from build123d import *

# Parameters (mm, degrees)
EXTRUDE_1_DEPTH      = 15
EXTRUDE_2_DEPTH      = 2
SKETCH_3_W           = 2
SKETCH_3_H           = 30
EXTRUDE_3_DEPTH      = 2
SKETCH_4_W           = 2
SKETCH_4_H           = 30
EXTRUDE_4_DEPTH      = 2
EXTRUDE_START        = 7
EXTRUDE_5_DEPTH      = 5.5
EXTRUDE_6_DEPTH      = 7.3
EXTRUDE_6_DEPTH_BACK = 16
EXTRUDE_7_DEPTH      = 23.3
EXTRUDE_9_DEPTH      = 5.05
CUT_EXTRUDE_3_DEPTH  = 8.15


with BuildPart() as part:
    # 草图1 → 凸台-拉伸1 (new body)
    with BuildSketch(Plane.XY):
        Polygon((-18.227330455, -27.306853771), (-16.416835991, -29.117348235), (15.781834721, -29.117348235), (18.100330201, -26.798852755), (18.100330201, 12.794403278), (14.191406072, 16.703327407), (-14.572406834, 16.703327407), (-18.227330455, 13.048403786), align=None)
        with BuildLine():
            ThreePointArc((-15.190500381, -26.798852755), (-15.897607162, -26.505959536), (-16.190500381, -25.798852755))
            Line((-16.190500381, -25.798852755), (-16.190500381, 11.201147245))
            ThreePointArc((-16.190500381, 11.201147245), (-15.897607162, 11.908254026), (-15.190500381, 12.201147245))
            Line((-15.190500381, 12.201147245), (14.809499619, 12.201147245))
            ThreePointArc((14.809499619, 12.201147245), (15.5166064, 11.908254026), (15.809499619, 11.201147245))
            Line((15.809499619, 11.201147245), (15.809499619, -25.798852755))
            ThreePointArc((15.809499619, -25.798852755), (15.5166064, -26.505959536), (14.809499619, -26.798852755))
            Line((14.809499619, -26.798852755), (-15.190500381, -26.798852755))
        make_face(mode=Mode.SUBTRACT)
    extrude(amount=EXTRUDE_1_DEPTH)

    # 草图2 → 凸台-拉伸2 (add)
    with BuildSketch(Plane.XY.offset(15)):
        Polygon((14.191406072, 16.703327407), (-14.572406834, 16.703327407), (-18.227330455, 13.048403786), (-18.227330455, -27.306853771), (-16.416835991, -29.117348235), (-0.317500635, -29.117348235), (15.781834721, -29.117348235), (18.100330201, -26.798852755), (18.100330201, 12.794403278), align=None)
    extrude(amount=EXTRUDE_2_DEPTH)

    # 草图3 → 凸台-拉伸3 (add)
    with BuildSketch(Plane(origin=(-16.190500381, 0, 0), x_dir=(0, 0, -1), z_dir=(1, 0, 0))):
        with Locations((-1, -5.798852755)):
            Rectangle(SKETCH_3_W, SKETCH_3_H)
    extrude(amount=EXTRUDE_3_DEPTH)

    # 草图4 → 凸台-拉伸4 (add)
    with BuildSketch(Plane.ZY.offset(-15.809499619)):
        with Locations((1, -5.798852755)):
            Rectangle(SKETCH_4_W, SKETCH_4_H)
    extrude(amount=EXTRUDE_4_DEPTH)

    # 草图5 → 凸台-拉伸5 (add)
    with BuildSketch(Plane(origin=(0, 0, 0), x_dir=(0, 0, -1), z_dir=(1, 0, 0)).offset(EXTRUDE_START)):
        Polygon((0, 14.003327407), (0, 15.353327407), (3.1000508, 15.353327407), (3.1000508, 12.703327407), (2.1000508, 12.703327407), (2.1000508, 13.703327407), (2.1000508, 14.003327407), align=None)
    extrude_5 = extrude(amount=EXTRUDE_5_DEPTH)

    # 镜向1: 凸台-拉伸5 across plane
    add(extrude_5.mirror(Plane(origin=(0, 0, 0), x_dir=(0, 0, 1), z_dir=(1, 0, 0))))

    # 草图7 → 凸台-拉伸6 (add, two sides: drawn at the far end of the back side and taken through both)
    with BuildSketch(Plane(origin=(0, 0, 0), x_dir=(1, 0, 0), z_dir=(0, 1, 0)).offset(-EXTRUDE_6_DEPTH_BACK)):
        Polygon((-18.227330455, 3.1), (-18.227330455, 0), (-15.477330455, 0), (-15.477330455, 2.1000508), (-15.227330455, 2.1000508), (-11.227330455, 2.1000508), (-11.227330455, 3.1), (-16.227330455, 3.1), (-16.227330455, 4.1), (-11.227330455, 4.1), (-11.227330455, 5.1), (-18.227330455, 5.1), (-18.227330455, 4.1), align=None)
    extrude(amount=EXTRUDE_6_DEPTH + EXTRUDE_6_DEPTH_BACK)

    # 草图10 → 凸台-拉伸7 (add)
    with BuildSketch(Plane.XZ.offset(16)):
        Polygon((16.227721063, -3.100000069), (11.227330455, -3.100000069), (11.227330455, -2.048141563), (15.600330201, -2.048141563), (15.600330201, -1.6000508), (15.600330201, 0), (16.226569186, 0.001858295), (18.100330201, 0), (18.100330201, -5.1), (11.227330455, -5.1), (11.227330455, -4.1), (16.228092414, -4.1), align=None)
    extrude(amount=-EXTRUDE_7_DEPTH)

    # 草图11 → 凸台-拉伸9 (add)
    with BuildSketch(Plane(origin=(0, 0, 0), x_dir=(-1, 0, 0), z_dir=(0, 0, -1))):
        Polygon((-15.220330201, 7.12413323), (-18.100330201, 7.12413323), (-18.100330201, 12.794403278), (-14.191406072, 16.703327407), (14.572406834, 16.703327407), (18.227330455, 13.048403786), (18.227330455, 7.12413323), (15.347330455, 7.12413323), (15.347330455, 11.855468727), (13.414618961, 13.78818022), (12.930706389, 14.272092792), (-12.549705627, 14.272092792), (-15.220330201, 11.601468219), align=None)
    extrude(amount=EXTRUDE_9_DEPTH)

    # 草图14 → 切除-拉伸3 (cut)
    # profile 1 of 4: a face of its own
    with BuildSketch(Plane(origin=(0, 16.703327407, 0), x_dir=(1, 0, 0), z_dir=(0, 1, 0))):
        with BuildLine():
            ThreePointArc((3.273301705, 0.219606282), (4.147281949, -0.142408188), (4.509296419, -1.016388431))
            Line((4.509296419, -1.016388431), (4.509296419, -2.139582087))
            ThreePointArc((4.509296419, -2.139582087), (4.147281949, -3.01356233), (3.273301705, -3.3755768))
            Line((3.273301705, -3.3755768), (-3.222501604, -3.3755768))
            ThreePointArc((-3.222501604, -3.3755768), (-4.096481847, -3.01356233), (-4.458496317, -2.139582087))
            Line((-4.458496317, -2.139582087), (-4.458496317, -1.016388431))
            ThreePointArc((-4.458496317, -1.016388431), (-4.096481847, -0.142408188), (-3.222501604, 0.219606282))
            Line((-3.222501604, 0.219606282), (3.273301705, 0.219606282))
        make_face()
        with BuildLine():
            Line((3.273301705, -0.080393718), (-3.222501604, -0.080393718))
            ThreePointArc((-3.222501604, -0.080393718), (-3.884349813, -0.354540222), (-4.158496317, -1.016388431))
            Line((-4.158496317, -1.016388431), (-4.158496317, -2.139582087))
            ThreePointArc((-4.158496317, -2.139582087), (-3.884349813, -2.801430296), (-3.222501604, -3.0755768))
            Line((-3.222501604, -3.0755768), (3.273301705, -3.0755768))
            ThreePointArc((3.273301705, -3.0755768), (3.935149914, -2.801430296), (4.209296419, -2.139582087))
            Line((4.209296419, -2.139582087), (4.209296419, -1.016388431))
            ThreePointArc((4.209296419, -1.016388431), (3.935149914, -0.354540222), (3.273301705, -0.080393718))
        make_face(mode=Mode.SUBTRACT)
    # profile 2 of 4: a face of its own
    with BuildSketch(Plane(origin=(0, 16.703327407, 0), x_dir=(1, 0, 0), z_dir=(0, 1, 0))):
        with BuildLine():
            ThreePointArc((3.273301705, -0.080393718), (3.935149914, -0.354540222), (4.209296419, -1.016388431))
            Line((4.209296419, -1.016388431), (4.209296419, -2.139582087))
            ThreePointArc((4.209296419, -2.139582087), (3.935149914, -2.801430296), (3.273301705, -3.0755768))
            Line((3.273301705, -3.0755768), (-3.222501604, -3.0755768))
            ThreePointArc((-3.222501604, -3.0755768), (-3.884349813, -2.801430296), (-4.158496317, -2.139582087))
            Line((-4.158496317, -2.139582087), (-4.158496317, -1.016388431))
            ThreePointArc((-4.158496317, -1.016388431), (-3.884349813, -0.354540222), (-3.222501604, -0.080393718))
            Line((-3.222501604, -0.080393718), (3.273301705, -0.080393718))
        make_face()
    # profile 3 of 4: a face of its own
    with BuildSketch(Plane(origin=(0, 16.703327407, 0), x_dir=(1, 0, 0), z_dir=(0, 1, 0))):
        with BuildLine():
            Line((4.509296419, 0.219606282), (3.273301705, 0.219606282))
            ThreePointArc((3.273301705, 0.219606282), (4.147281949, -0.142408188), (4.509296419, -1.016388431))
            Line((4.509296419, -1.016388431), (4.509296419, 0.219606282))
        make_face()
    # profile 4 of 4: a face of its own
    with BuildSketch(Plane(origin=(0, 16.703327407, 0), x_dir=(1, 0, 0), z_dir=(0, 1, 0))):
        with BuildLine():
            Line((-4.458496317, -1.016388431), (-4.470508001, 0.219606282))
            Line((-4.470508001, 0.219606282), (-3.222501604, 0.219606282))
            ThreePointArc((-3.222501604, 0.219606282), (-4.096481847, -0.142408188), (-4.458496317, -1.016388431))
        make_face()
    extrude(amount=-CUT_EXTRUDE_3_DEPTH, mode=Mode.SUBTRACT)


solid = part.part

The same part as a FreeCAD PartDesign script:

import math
import FreeCAD as App
import Part
import Sketcher
Q = App.Units.Quantity

doc = App.newDocument("Part")
params = doc.addObject("Spreadsheet::Sheet", "Params")
for row, (alias, value) in enumerate([
    ("sketch1_radius", "1 mm"),
    ("sketch1_width", "30 mm"),
    ("sketch1_height", "37 mm"),
    ("pad1_length", "15 mm"),
    ("pad2_length", "2 mm"),
    ("sketch3_width", "30 mm"),
    ("sketch3_height", "2 mm"),
    ("pad3_length", "2 mm"),
    ("sketch4_width", "30 mm"),
    ("sketch4_height", "2 mm"),
    ("pad4_length", "2 mm"),
    ("sketch5_height", "1 mm"),
    ("sketch5_width", "1.3 mm"),
    ("sketch5_width2", "1.35 mm"),
    ("pad5_length", "5.5 mm"),
    ("sketch6_width", "5 mm"),
    ("sketch6_width2", "7 mm"),
    ("sketch6_height", "1 mm"),
    ("sketch6_height2", "5.1 mm"),
    ("sketch6_width3", "2.75 mm"),
    ("pad6_length", "7.3 mm"),
    ("pad6_length2", "16 mm"),
    ("sketch7_height", "1 mm"),
    ("sketch7_length", "1 mm"),
    ("sketch7_height2", "5.1 mm"),
    ("pad7_length", "23.3 mm"),
    ("sketch8_width", "2.88 mm"),
    ("pad8_length", "5.05 mm"),
    ("pocket1_length", "8.15 mm"),
], start=1):
    params.set(f"A{row}", alias)
    params.set(f"B{row}", "=" + value)
    params.setAlias(f"B{row}", alias)

body = doc.addObject("PartDesign::Body", "Body")

# Sketch on XY plane
sketch1 = body.newObject("Sketcher::SketchObject", "Sketch")
sketch1.AttachmentSupport = (doc.getObject("XY_Plane"), [""])
sketch1.MapMode = "FlatFace"
sketch1.addGeometry([
    Part.LineSegment(App.Vector(-18.2, -27.3, 0), App.Vector(-16.4, -29.1, 0)),  # 0
    Part.LineSegment(App.Vector(-16.4, -29.1, 0), App.Vector(15.8, -29.1, 0)),  # 1
    Part.LineSegment(App.Vector(15.8, -29.1, 0), App.Vector(18.1, -26.8, 0)),  # 2
    Part.LineSegment(App.Vector(18.1, -26.8, 0), App.Vector(18.1, 12.8, 0)),  # 3
    Part.LineSegment(App.Vector(18.1, 12.8, 0), App.Vector(14.2, 16.7, 0)),  # 4
    Part.LineSegment(App.Vector(14.2, 16.7, 0), App.Vector(-14.6, 16.7, 0)),  # 5
    Part.LineSegment(App.Vector(-14.6, 16.7, 0), App.Vector(-18.2, 13, 0)),  # 6
    Part.LineSegment(App.Vector(-18.2, 13, 0), App.Vector(-18.2, -27.3, 0)),  # 7
    Part.LineSegment(App.Vector(14.8, -26.8, 0), App.Vector(-15.2, -26.8, 0)),  # 8
    Part.ArcOfCircle(Part.Circle(App.Vector(-15.2, -25.8, 0), App.Vector(0, 0, 1), 1), math.radians(-180), math.radians(-90)),  # 9
    Part.LineSegment(App.Vector(-16.2, -25.8, 0), App.Vector(-16.2, 11.2, 0)),  # 10
    Part.ArcOfCircle(Part.Circle(App.Vector(-15.2, 11.2, 0), App.Vector(0, 0, 1), 1), math.radians(90), math.radians(180)),  # 11
    Part.LineSegment(App.Vector(-15.2, 12.2, 0), App.Vector(14.8, 12.2, 0)),  # 12
    Part.ArcOfCircle(Part.Circle(App.Vector(14.8, 11.2, 0), App.Vector(0, 0, 1), 1), math.radians(0), math.radians(90)),  # 13
    Part.LineSegment(App.Vector(15.8, 11.2, 0), App.Vector(15.8, -25.8, 0)),  # 14
    Part.ArcOfCircle(Part.Circle(App.Vector(14.8, -25.8, 0), App.Vector(0, 0, 1), 1), math.radians(-90), math.radians(0)),  # 15
], False)
sketch1.addConstraint([
    Sketcher.Constraint("Coincident", 0, 2, 1, 1),
    Sketcher.Constraint("Coincident", 1, 2, 2, 1),
    Sketcher.Constraint("Coincident", 2, 2, 3, 1),
    Sketcher.Constraint("Coincident", 3, 2, 4, 1),
    Sketcher.Constraint("Coincident", 4, 2, 5, 1),
    Sketcher.Constraint("Coincident", 5, 2, 6, 1),
    Sketcher.Constraint("Coincident", 6, 2, 7, 1),
    Sketcher.Constraint("Coincident", 7, 2, 0, 1),
    Sketcher.Constraint("Tangent", 8, 2, 9, 2),
    Sketcher.Constraint("Tangent", 9, 1, 10, 1),
    Sketcher.Constraint("Tangent", 10, 2, 11, 2),
    Sketcher.Constraint("Tangent", 11, 1, 12, 1),
    Sketcher.Constraint("Tangent", 12, 2, 13, 2),
    Sketcher.Constraint("Tangent", 13, 1, 14, 1),
    Sketcher.Constraint("Tangent", 14, 2, 15, 2),
    Sketcher.Constraint("Tangent", 15, 1, 8, 1),
    Sketcher.Constraint("Horizontal", 1),
    Sketcher.Constraint("Vertical", 3),
    Sketcher.Constraint("Horizontal", 5),
    Sketcher.Constraint("Vertical", 7),
    Sketcher.Constraint("Horizontal", 8),
    Sketcher.Constraint("Vertical", 10),
    Sketcher.Constraint("Horizontal", 12),
    Sketcher.Constraint("Vertical", 14),
    Sketcher.Constraint("Equal", 9, 11),
    Sketcher.Constraint("Equal", 11, 13),
    Sketcher.Constraint("Equal", 13, 15),
    Sketcher.Constraint("Perpendicular", 0, 2),
    Sketcher.Constraint("Perpendicular", 2, 4),
    Sketcher.Constraint("Perpendicular", 4, 6),
    Sketcher.Constraint("Horizontal", 2, 2, 8, 2),
    Sketcher.Constraint("Radius", 9, Q("1 mm")),
    Sketcher.Constraint("DistanceX", 8, 2, 8, 1, Q("30 mm")),
    Sketcher.Constraint("DistanceY", 10, 1, 10, 2, Q("37 mm")),
    Sketcher.Constraint("Angle", 0, Q("-45 deg")),
    Sketcher.Constraint("DistanceY", 3, 2, 6, 2, Q("0.254001 mm")),
    Sketcher.Constraint("DistanceY", 7, 2, 9, 3, Q("1.508001 mm")),
    Sketcher.Constraint("DistanceX", 1, 1, 1, 2, Q("32.198671 mm")),
    Sketcher.Constraint("DistanceX", 9, 3, -1, 1, Q("15.1905 mm")),
    Sketcher.Constraint("DistanceX", 5, 2, 5, 1, Q("28.763813 mm")),
    Sketcher.Constraint("DistanceY", 3, 1, 3, 2, Q("39.593256 mm")),
    Sketcher.Constraint("DistanceY", 0, 2, -1, 1, Q("29.117348 mm")),
    Sketcher.Constraint("DistanceX", -1, 1, 2, 2, Q("18.10033 mm")),
    Sketcher.Constraint("DistanceX", 6, 2, -1, 1, Q("18.22733 mm")),
])
sketch1.setExpression("Constraints[31]", "Params.sketch1_radius")
sketch1.setExpression("Constraints[32]", "Params.sketch1_width")
sketch1.setExpression("Constraints[33]", "Params.sketch1_height")
pad1 = body.newObject("PartDesign::Pad", "Pad")
pad1.Profile = sketch1
pad1.setExpression("Length", "Params.pad1_length")

# Sketch on XY plane
sketch2 = body.newObject("Sketcher::SketchObject", "Sketch001")
sketch2.AttachmentSupport = (doc.getObject("XY_Plane"), [""])
sketch2.MapMode = "FlatFace"
sketch2.AttachmentOffset = App.Placement(App.Vector(0, 0, 15), App.Rotation())
sketch2.addGeometry([
    Part.LineSegment(App.Vector(14.2, 16.7, 0), App.Vector(-14.6, 16.7, 0)),  # 0
    Part.LineSegment(App.Vector(-14.6, 16.7, 0), App.Vector(-18.2, 13, 0)),  # 1
    Part.LineSegment(App.Vector(-18.2, 13, 0), App.Vector(-18.2, -27.3, 0)),  # 2
    Part.LineSegment(App.Vector(-18.2, -27.3, 0), App.Vector(-16.4, -29.1, 0)),  # 3
    Part.LineSegment(App.Vector(-16.4, -29.1, 0), App.Vector(15.8, -29.1, 0)),  # 4
    Part.LineSegment(App.Vector(15.8, -29.1, 0), App.Vector(18.1, -26.8, 0)),  # 5
    Part.LineSegment(App.Vector(18.1, -26.8, 0), App.Vector(18.1, 12.8, 0)),  # 6
    Part.LineSegment(App.Vector(18.1, 12.8, 0), App.Vector(14.2, 16.7, 0)),  # 7
], False)
sketch2.addConstraint([
    Sketcher.Constraint("Coincident", 0, 2, 1, 1),
    Sketcher.Constraint("Coincident", 1, 2, 2, 1),
    Sketcher.Constraint("Coincident", 2, 2, 3, 1),
    Sketcher.Constraint("Coincident", 3, 2, 4, 1),
    Sketcher.Constraint("Coincident", 4, 2, 5, 1),
    Sketcher.Constraint("Coincident", 5, 2, 6, 1),
    Sketcher.Constraint("Coincident", 6, 2, 7, 1),
    Sketcher.Constraint("Coincident", 7, 2, 0, 1),
    Sketcher.Constraint("Horizontal", 0),
    Sketcher.Constraint("Vertical", 2),
    Sketcher.Constraint("Horizontal", 4),
    Sketcher.Constraint("Vertical", 6),
    Sketcher.Constraint("Perpendicular", 1, 3),
    Sketcher.Constraint("Perpendicular", 3, 5),
    Sketcher.Constraint("Perpendicular", 5, 7),
    Sketcher.Constraint("Angle", 1, Q("-135 deg")),
    Sketcher.Constraint("DistanceY", 2, 2, 5, 2, Q("0.508001 mm")),
    Sketcher.Constraint("DistanceY", 6, 2, 1, 2, Q("0.254001 mm")),
    Sketcher.Constraint("DistanceX", 4, 1, 4, 2, Q("32.198671 mm")),
    Sketcher.Constraint("DistanceX", 0, 2, 0, 1, Q("28.763813 mm")),
    Sketcher.Constraint("DistanceY", 2, 2, 2, 1, Q("40.355258 mm")),
    Sketcher.Constraint("DistanceX", 1, 2, -1, 1, Q("18.22733 mm")),
    Sketcher.Constraint("DistanceY", 3, 2, -1, 1, Q("29.117348 mm")),
    Sketcher.Constraint("DistanceX", -1, 1, 5, 2, Q("18.10033 mm")),
])
pad2 = body.newObject("PartDesign::Pad", "Pad001")
pad2.Profile = sketch2
pad2.setExpression("Length", "Params.pad2_length")

# Sketch on YZ plane
sketch3 = body.newObject("Sketcher::SketchObject", "Sketch002")
sketch3.AttachmentSupport = (doc.getObject("YZ_Plane"), [""])
sketch3.MapMode = "FlatFace"
sketch3.AttachmentOffset = App.Placement(App.Vector(0, 0, -16.1905), App.Rotation())
sketch3.addGeometry([
    Part.LineSegment(App.Vector(9.2, 2, 0), App.Vector(-20.8, 2, 0)),
    Part.LineSegment(App.Vector(-20.8, 2, 0), App.Vector(-20.8, 0, 0)),
    Part.LineSegment(App.Vector(-20.8, 0, 0), App.Vector(9.2, 0, 0)),
    Part.LineSegment(App.Vector(9.2, 0, 0), App.Vector(9.2, 2, 0)),
], False)
sketch3.addConstraint([
    Sketcher.Constraint("Coincident", 0, 2, 1, 1),
    Sketcher.Constraint("Coincident", 1, 2, 2, 1),
    Sketcher.Constraint("Coincident", 2, 2, 3, 1),
    Sketcher.Constraint("Coincident", 3, 2, 0, 1),
    Sketcher.Constraint("Horizontal", 0),
    Sketcher.Constraint("Vertical", 1),
    Sketcher.Constraint("Horizontal", 2),
    Sketcher.Constraint("Vertical", 3),
    Sketcher.Constraint("PointOnObject", 1, 2, -1),
    Sketcher.Constraint("DistanceX", 0, 2, 0, 1, Q("30 mm")),
    Sketcher.Constraint("DistanceY", 1, 2, 1, 1, Q("2 mm")),
    Sketcher.Constraint("DistanceX", 0, 2, -1, 1, Q("20.798853 mm")),
])
sketch3.setExpression("Constraints[9]", "Params.sketch3_width")
sketch3.setExpression("Constraints[10]", "Params.sketch3_height")
pad3 = body.newObject("PartDesign::Pad", "Pad002")
pad3.Profile = sketch3
pad3.setExpression("Length", "Params.pad3_length")

# Sketch on YZ plane
sketch4 = body.newObject("Sketcher::SketchObject", "Sketch003")
sketch4.AttachmentSupport = (doc.getObject("YZ_Plane"), [""])
sketch4.MapMode = "FlatFace"
sketch4.AttachmentOffset = App.Placement(App.Vector(0, 0, 15.8095), App.Rotation())
sketch4.addGeometry([
    Part.LineSegment(App.Vector(9.2, 0, 0), App.Vector(-20.8, 0, 0)),
    Part.LineSegment(App.Vector(-20.8, 0, 0), App.Vector(-20.8, 2, 0)),
    Part.LineSegment(App.Vector(-20.8, 2, 0), App.Vector(9.2, 2, 0)),
    Part.LineSegment(App.Vector(9.2, 2, 0), App.Vector(9.2, 0, 0)),
], False)
sketch4.addConstraint([
    Sketcher.Constraint("Coincident", 0, 2, 1, 1),
    Sketcher.Constraint("Coincident", 1, 2, 2, 1),
    Sketcher.Constraint("Coincident", 2, 2, 3, 1),
    Sketcher.Constraint("Coincident", 3, 2, 0, 1),
    Sketcher.Constraint("Horizontal", 0),
    Sketcher.Constraint("Vertical", 1),
    Sketcher.Constraint("Horizontal", 2),
    Sketcher.Constraint("Vertical", 3),
    Sketcher.Constraint("PointOnObject", 0, 2, -1),
    Sketcher.Constraint("DistanceX", 0, 2, 0, 1, Q("30 mm")),
    Sketcher.Constraint("DistanceY", 1, 1, 1, 2, Q("2 mm")),
    Sketcher.Constraint("DistanceX", 0, 2, -1, 1, Q("20.798853 mm")),
])
sketch4.setExpression("Constraints[9]", "Params.sketch4_width")
sketch4.setExpression("Constraints[10]", "Params.sketch4_height")
pad4 = body.newObject("PartDesign::Pad", "Pad003")
pad4.Profile = sketch4
pad4.setExpression("Length", "Params.pad4_length")
pad4.Reversed = True

# Sketch on YZ plane
sketch5 = body.newObject("Sketcher::SketchObject", "Sketch004")
sketch5.AttachmentSupport = (doc.getObject("YZ_Plane"), [""])
sketch5.MapMode = "FlatFace"
sketch5.AttachmentOffset = App.Placement(App.Vector(0, 0, 7), App.Rotation())
sketch5.addGeometry([
    Part.LineSegment(App.Vector(15.4, 0, 0), App.Vector(14, 0, 0)),  # 0
    Part.LineSegment(App.Vector(14, 0, 0), App.Vector(14, -2.1, 0)),  # 1
    Part.LineSegment(App.Vector(14, -2.1, 0), App.Vector(12.7, -2.1, 0)),  # 2
    Part.LineSegment(App.Vector(12.7, -2.1, 0), App.Vector(12.7, -3.1, 0)),  # 3
    Part.LineSegment(App.Vector(12.7, -3.1, 0), App.Vector(15.4, -3.1, 0)),  # 4
    Part.LineSegment(App.Vector(15.4, -3.1, 0), App.Vector(15.4, 0, 0)),  # 5
], False)
sketch5.addConstraint([
    Sketcher.Constraint("Coincident", 0, 2, 1, 1),
    Sketcher.Constraint("Coincident", 1, 2, 2, 1),
    Sketcher.Constraint("Coincident", 2, 2, 3, 1),
    Sketcher.Constraint("Coincident", 3, 2, 4, 1),
    Sketcher.Constraint("Coincident", 4, 2, 5, 1),
    Sketcher.Constraint("Coincident", 5, 2, 0, 1),
    Sketcher.Constraint("Horizontal", 0),
    Sketcher.Constraint("Vertical", 1),
    Sketcher.Constraint("Horizontal", 2),
    Sketcher.Constraint("Vertical", 3),
    Sketcher.Constraint("Horizontal", 4),
    Sketcher.Constraint("Vertical", 5),
    Sketcher.Constraint("PointOnObject", 0, 2, -1),
    Sketcher.Constraint("DistanceY", 3, 2, 3, 1, Q("1 mm")),
    Sketcher.Constraint("DistanceX", 2, 2, 2, 1, Q("1.3 mm")),
    Sketcher.Constraint("DistanceX", 0, 2, 0, 1, Q("1.35 mm")),
    Sketcher.Constraint("DistanceY", 1, 2, 1, 1, Q("2.100051 mm")),
    Sketcher.Constraint("DistanceX", -1, 1, 0, 2, Q("14.003327 mm")),
])
sketch5.setExpression("Constraints[13]", "Params.sketch5_height")
sketch5.setExpression("Constraints[14]", "Params.sketch5_width")
sketch5.setExpression("Constraints[15]", "Params.sketch5_width2")
pad5 = body.newObject("PartDesign::Pad", "Pad004")
pad5.Profile = sketch5
pad5.setExpression("Length", "Params.pad5_length")
doc.recompute()

mirrored = body.newObject("PartDesign::Mirrored", "Mirrored")
mirrored.Originals = [pad5]
mirrored.MirrorPlane = (doc.getObject("YZ_Plane"), [""])
body.Tip = mirrored

# Sketch on XZ plane
sketch6 = body.newObject("Sketcher::SketchObject", "Sketch005")
sketch6.AttachmentSupport = (doc.getObject("XZ_Plane"), [""])
sketch6.MapMode = "FlatFace"
sketch6.addGeometry([
    Part.LineSegment(App.Vector(-18.2, 0, 0), App.Vector(-15.5, 0, 0)),  # 0
    Part.LineSegment(App.Vector(-15.5, 0, 0), App.Vector(-15.5, -2.1, 0)),  # 1
    Part.LineSegment(App.Vector(-15.5, -2.1, 0), App.Vector(-11.2, -2.1, 0)),  # 2
    Part.LineSegment(App.Vector(-11.2, -2.1, 0), App.Vector(-11.2, -3.1, 0)),  # 3
    Part.LineSegment(App.Vector(-11.2, -3.1, 0), App.Vector(-16.2, -3.1, 0)),  # 4
    Part.LineSegment(App.Vector(-16.2, -3.1, 0), App.Vector(-16.2, -4.1, 0)),  # 5
    Part.LineSegment(App.Vector(-16.2, -4.1, 0), App.Vector(-11.2, -4.1, 0)),  # 6
    Part.LineSegment(App.Vector(-11.2, -4.1, 0), App.Vector(-11.2, -5.1, 0)),  # 7
    Part.LineSegment(App.Vector(-11.2, -5.1, 0), App.Vector(-18.2, -5.1, 0)),  # 8
    Part.LineSegment(App.Vector(-18.2, -5.1, 0), App.Vector(-18.2, 0, 0)),  # 9
], False)
sketch6.addConstraint([
    Sketcher.Constraint("Coincident", 0, 2, 1, 1),
    Sketcher.Constraint("Coincident", 1, 2, 2, 1),
    Sketcher.Constraint("Coincident", 2, 2, 3, 1),
    Sketcher.Constraint("Coincident", 3, 2, 4, 1),
    Sketcher.Constraint("Coincident", 4, 2, 5, 1),
    Sketcher.Constraint("Coincident", 5, 2, 6, 1),
    Sketcher.Constraint("Coincident", 6, 2, 7, 1),
    Sketcher.Constraint("Coincident", 7, 2, 8, 1),
    Sketcher.Constraint("Coincident", 8, 2, 9, 1),
    Sketcher.Constraint("Coincident", 9, 2, 0, 1),
    Sketcher.Constraint("Horizontal", 0),
    Sketcher.Constraint("Vertical", 1),
    Sketcher.Constraint("Horizontal", 2),
    Sketcher.Constraint("Vertical", 3),
    Sketcher.Constraint("Horizontal", 4),
    Sketcher.Constraint("Vertical", 5),
    Sketcher.Constraint("Horizontal", 6),
    Sketcher.Constraint("Vertical", 7),
    Sketcher.Constraint("Horizontal", 8),
    Sketcher.Constraint("Vertical", 9),
    Sketcher.Constraint("PointOnObject", 0, 2, -1),
    Sketcher.Constraint("Vertical", 3, 2, 6, 2),
    Sketcher.Constraint("Equal", 5, 7),
    Sketcher.Constraint("DistanceX", 4, 2, 4, 1, Q("5 mm")),
    Sketcher.Constraint("DistanceX", 8, 2, 8, 1, Q("7 mm")),
    Sketcher.Constraint("DistanceY", 5, 2, 5, 1, Q("1 mm")),
    Sketcher.Constraint("DistanceY", 9, 1, 9, 2, Q("5.1 mm")),
    Sketcher.Constraint("DistanceX", 0, 1, 0, 2, Q("2.75 mm")),
    Sketcher.Constraint("DistanceY", 1, 2, 1, 1, Q("2.100051 mm")),
    Sketcher.Constraint("DistanceX", 0, 2, -1, 1, Q("15.47733 mm")),
])
sketch6.setExpression("Constraints[23]", "Params.sketch6_width")
sketch6.setExpression("Constraints[24]", "Params.sketch6_width2")
sketch6.setExpression("Constraints[25]", "Params.sketch6_height")
sketch6.setExpression("Constraints[26]", "Params.sketch6_height2")
sketch6.setExpression("Constraints[27]", "Params.sketch6_width3")
pad6 = body.newObject("PartDesign::Pad", "Pad005")
pad6.Profile = sketch6
pad6.Type = "TwoLengths"
pad6.setExpression("Length", "Params.pad6_length")
pad6.setExpression("Length2", "Params.pad6_length2")
pad6.Reversed = True

# Sketch on XZ plane
sketch7 = body.newObject("Sketcher::SketchObject", "Sketch006")
sketch7.AttachmentSupport = (doc.getObject("XZ_Plane"), [""])
sketch7.MapMode = "FlatFace"
sketch7.AttachmentOffset = App.Placement(App.Vector(0, 0, 16), App.Rotation())
sketch7.addGeometry([
    Part.LineSegment(App.Vector(11.2, -3.1, 0), App.Vector(16.2, -3.1, 0)),  # 0
    Part.LineSegment(App.Vector(16.2, -3.1, 0), App.Vector(16.2, -4.1, 0)),  # 1
    Part.LineSegment(App.Vector(16.2, -4.1, 0), App.Vector(11.2, -4.1, 0)),  # 2
    Part.LineSegment(App.Vector(11.2, -4.1, 0), App.Vector(11.2, -5.1, 0)),  # 3
    Part.LineSegment(App.Vector(11.2, -5.1, 0), App.Vector(18.1, -5.1, 0)),  # 4
    Part.LineSegment(App.Vector(18.1, -5.1, 0), App.Vector(18.1, 0, 0)),  # 5
    Part.LineSegment(App.Vector(18.1, 0, 0), App.Vector(16.2, 0, 0)),  # 6
    Part.LineSegment(App.Vector(16.2, 0, 0), App.Vector(15.6, 0, 0)),  # 7
    Part.LineSegment(App.Vector(15.6, 0, 0), App.Vector(15.6, -2, 0)),  # 8
    Part.LineSegment(App.Vector(15.6, -2, 0), App.Vector(11.2, -2, 0)),  # 9
    Part.LineSegment(App.Vector(11.2, -2, 0), App.Vector(11.2, -3.1, 0)),  # 10
], False)
sketch7.addConstraint([
    Sketcher.Constraint("Coincident", 0, 2, 1, 1),
    Sketcher.Constraint("Coincident", 1, 2, 2, 1),
    Sketcher.Constraint("Coincident", 2, 2, 3, 1),
    Sketcher.Constraint("Coincident", 3, 2, 4, 1),
    Sketcher.Constraint("Coincident", 4, 2, 5, 1),
    Sketcher.Constraint("Coincident", 5, 2, 6, 1),
    Sketcher.Constraint("Coincident", 6, 2, 7, 1),
    Sketcher.Constraint("Coincident", 7, 2, 8, 1),
    Sketcher.Constraint("Coincident", 8, 2, 9, 1),
    Sketcher.Constraint("Coincident", 9, 2, 10, 1),
    Sketcher.Constraint("Coincident", 10, 2, 0, 1),
    Sketcher.Constraint("Horizontal", 0),
    Sketcher.Constraint("Horizontal", 2),
    Sketcher.Constraint("Vertical", 3),
    Sketcher.Constraint("Horizontal", 4),
    Sketcher.Constraint("Vertical", 5),
    Sketcher.Constraint("Vertical", 8),
    Sketcher.Constraint("Horizontal", 9),
    Sketcher.Constraint("Vertical", 10),
    Sketcher.Constraint("PointOnObject", 5, 2, -1),
    Sketcher.Constraint("PointOnObject", 7, 2, -1),
    Sketcher.Constraint("Vertical", 3, 2, 9, 2),
    Sketcher.Constraint("DistanceY", 3, 2, 3, 1, Q("1 mm")),
    Sketcher.Constraint("Distance", 1, Q("1 mm")),
    Sketcher.Constraint("DistanceY", 5, 1, 5, 2, Q("5.1 mm")),
    Sketcher.Constraint("Angle", 7, Q("-179.829982 deg")),
    Sketcher.Constraint("DistanceX", 7, 2, 5, 2, Q("2.5 mm")),
    Sketcher.Constraint("DistanceX", 4, 1, 4, 2, Q("6.873 mm")),
    Sketcher.Constraint("DistanceY", 8, 2, 6, 2, Q("2.05 mm")),
    Sketcher.Constraint("DistanceX", 0, 1, 0, 2, Q("5.000391 mm")),
    Sketcher.Constraint("DistanceX", 2, 2, 2, 1, Q("5.000762 mm")),
    Sketcher.Constraint("Distance", 6, Q("1.873762 mm")),
    Sketcher.Constraint("DistanceX", -1, 1, 0, 2, Q("16.227721 mm")),
])
sketch7.setExpression("Constraints[22]", "Params.sketch7_height")
sketch7.setExpression("Constraints[23]", "Params.sketch7_length")
sketch7.setExpression("Constraints[24]", "Params.sketch7_height2")
pad7 = body.newObject("PartDesign::Pad", "Pad006")
pad7.Profile = sketch7
pad7.setExpression("Length", "Params.pad7_length")
pad7.Reversed = True

# Sketch on XY plane
sketch8 = body.newObject("Sketcher::SketchObject", "Sketch007")
sketch8.AttachmentSupport = (doc.getObject("XY_Plane"), [""])
sketch8.MapMode = "FlatFace"
sketch8.addGeometry([
    Part.LineSegment(App.Vector(18.1, 7.1, 0), App.Vector(15.2, 7.1, 0)),  # 0
    Part.LineSegment(App.Vector(15.2, 7.1, 0), App.Vector(15.2, 11.6, 0)),  # 1
    Part.LineSegment(App.Vector(15.2, 11.6, 0), App.Vector(12.5, 14.3, 0)),  # 2
    Part.LineSegment(App.Vector(12.5, 14.3, 0), App.Vector(-12.9, 14.3, 0)),  # 3
    Part.LineSegment(App.Vector(-12.9, 14.3, 0), App.Vector(-13.4, 13.8, 0)),  # 4
    Part.LineSegment(App.Vector(-13.4, 13.8, 0), App.Vector(-15.3, 11.9, 0)),  # 5
    Part.LineSegment(App.Vector(-15.3, 11.9, 0), App.Vector(-15.3, 7.1, 0)),  # 6
    Part.LineSegment(App.Vector(-15.3, 7.1, 0), App.Vector(-18.2, 7.1, 0)),  # 7
    Part.LineSegment(App.Vector(-18.2, 7.1, 0), App.Vector(-18.2, 13, 0)),  # 8
    Part.LineSegment(App.Vector(-18.2, 13, 0), App.Vector(-14.6, 16.7, 0)),  # 9
    Part.LineSegment(App.Vector(-14.6, 16.7, 0), App.Vector(14.2, 16.7, 0)),  # 10
    Part.LineSegment(App.Vector(14.2, 16.7, 0), App.Vector(18.1, 12.8, 0)),  # 11
    Part.LineSegment(App.Vector(18.1, 12.8, 0), App.Vector(18.1, 7.1, 0)),  # 12
], False)
sketch8.addConstraint([
    Sketcher.Constraint("Coincident", 0, 2, 1, 1),
    Sketcher.Constraint("Coincident", 1, 2, 2, 1),
    Sketcher.Constraint("Coincident", 2, 2, 3, 1),
    Sketcher.Constraint("Coincident", 3, 2, 4, 1),
    Sketcher.Constraint("Coincident", 4, 2, 5, 1),
    Sketcher.Constraint("Coincident", 5, 2, 6, 1),
    Sketcher.Constraint("Coincident", 6, 2, 7, 1),
    Sketcher.Constraint("Coincident", 7, 2, 8, 1),
    Sketcher.Constraint("Coincident", 8, 2, 9, 1),
    Sketcher.Constraint("Coincident", 9, 2, 10, 1),
    Sketcher.Constraint("Coincident", 10, 2, 11, 1),
    Sketcher.Constraint("Coincident", 11, 2, 12, 1),
    Sketcher.Constraint("Coincident", 12, 2, 0, 1),
    Sketcher.Constraint("Horizontal", 0),
    Sketcher.Constraint("Vertical", 1),
    Sketcher.Constraint("Horizontal", 3),
    Sketcher.Constraint("Vertical", 6),
    Sketcher.Constraint("Horizontal", 7),
    Sketcher.Constraint("Vertical", 8),
    Sketcher.Constraint("Horizontal", 10),
    Sketcher.Constraint("Vertical", 12),
    Sketcher.Constraint("Perpendicular", 2, 4),
    Sketcher.Constraint("Parallel", 4, 5),
    Sketcher.Constraint("Parallel", 5, 9),
    Sketcher.Constraint("Perpendicular", 9, 11),
    Sketcher.Constraint("Horizontal", 0, 2, 6, 2),
    Sketcher.Constraint("Equal", 0, 7),
    Sketcher.Constraint("Angle", 2, Q("135 deg")),
    Sketcher.Constraint("DistanceX", 0, 2, 0, 1, Q("2.88 mm")),
    Sketcher.Constraint("DistanceY", 1, 2, 5, 2, Q("0.254001 mm")),
    Sketcher.Constraint("DistanceY", 8, 1, 8, 2, Q("5.924271 mm")),
    Sketcher.Constraint("DistanceY", 12, 2, 12, 1, Q("5.67027 mm")),
    Sketcher.Constraint("DistanceX", 9, 2, 3, 2, Q("1.6417 mm")),
    Sketcher.Constraint("DistanceX", 3, 2, 3, 1, Q("25.480412 mm")),
    Sketcher.Constraint("DistanceY", 1, 1, 1, 2, Q("4.477335 mm")),
    Sketcher.Constraint("DistanceX", -1, 1, 0, 2, Q("15.22033 mm")),
    Sketcher.Constraint("DistanceY", -1, 1, 1, 2, Q("11.601468 mm")),
    Sketcher.Constraint("DistanceX", 4, 2, -1, 1, Q("13.414619 mm")),
    Sketcher.Constraint("DistanceY", -1, 1, 4, 2, Q("13.78818 mm")),
])
sketch8.setExpression("Constraints[28]", "Params.sketch8_width")
pad8 = body.newObject("PartDesign::Pad", "Pad007")
pad8.Profile = sketch8
pad8.setExpression("Length", "Params.pad8_length")
pad8.Reversed = True

# Sketch on XZ plane
sketch9 = body.newObject("Sketcher::SketchObject", "Sketch008")
sketch9.AttachmentSupport = (doc.getObject("XZ_Plane"), [""])
sketch9.MapMode = "FlatFace"
sketch9.AttachmentOffset = App.Placement(App.Vector(0, 0, -16.703327), App.Rotation())
sketch9.addGeometry([
    Part.LineSegment(App.Vector(4.5, -0.2, 0), App.Vector(-4.5, -0.2, 0)),  # 0
    Part.LineSegment(App.Vector(-4.5, -0.2, 0), App.Vector(-4.5, 1, 0)),  # 1
    Part.LineSegment(App.Vector(-4.5, 1, 0), App.Vector(-4.5, 2.1, 0)),  # 2
    Part.ArcOfCircle(Part.Circle(App.Vector(-3.2, 2.1, 0), App.Vector(0, 0, 1), 1.2), math.radians(90), math.radians(180)),  # 3
    Part.LineSegment(App.Vector(-3.2, 3.4, 0), App.Vector(3.3, 3.4, 0)),  # 4
    Part.ArcOfCircle(Part.Circle(App.Vector(3.3, 2.1, 0), App.Vector(0, 0, 1), 1.2), math.radians(0), math.radians(90)),  # 5
    Part.LineSegment(App.Vector(4.5, 2.1, 0), App.Vector(4.5, -0.2, 0)),  # 6
], False)
sketch9.addConstraint([
    Sketcher.Constraint("Coincident", 0, 2, 1, 1),
    Sketcher.Constraint("Coincident", 1, 2, 2, 1),
    Sketcher.Constraint("Tangent", 2, 2, 3, 2),
    Sketcher.Constraint("Tangent", 3, 1, 4, 1),
    Sketcher.Constraint("Tangent", 4, 2, 5, 2),
    Sketcher.Constraint("Tangent", 5, 1, 6, 1),
    Sketcher.Constraint("Coincident", 6, 2, 0, 1),
    Sketcher.Constraint("Horizontal", 0),
    Sketcher.Constraint("Vertical", 2),
    Sketcher.Constraint("Horizontal", 4),
    Sketcher.Constraint("Vertical", 6),
    Sketcher.Constraint("Equal", 3, 5),
    Sketcher.Constraint("Radius", 3, Q("1.235995 mm")),
    Sketcher.Constraint("DistanceY", 6, 2, 6, 1, Q("2.359188 mm")),
    Sketcher.Constraint("DistanceX", 3, 3, -1, 1, Q("3.222502 mm")),
    Sketcher.Constraint("DistanceX", -1, 1, 5, 3, Q("3.273302 mm")),
    Sketcher.Constraint("DistanceX", 0, 2, 0, 1, Q("8.979804 mm")),
    Sketcher.Constraint("DistanceY", 2, 1, 2, 2, Q("1.123194 mm")),
    Sketcher.Constraint("DistanceY", -1, 1, 1, 2, Q("1.016388 mm")),
])
pocket1 = body.newObject("PartDesign::Pocket", "Pocket")
pocket1.Profile = sketch9
pocket1.setExpression("Length", "Params.pocket1_length")
pocket1.Reversed = True

doc.recompute()
